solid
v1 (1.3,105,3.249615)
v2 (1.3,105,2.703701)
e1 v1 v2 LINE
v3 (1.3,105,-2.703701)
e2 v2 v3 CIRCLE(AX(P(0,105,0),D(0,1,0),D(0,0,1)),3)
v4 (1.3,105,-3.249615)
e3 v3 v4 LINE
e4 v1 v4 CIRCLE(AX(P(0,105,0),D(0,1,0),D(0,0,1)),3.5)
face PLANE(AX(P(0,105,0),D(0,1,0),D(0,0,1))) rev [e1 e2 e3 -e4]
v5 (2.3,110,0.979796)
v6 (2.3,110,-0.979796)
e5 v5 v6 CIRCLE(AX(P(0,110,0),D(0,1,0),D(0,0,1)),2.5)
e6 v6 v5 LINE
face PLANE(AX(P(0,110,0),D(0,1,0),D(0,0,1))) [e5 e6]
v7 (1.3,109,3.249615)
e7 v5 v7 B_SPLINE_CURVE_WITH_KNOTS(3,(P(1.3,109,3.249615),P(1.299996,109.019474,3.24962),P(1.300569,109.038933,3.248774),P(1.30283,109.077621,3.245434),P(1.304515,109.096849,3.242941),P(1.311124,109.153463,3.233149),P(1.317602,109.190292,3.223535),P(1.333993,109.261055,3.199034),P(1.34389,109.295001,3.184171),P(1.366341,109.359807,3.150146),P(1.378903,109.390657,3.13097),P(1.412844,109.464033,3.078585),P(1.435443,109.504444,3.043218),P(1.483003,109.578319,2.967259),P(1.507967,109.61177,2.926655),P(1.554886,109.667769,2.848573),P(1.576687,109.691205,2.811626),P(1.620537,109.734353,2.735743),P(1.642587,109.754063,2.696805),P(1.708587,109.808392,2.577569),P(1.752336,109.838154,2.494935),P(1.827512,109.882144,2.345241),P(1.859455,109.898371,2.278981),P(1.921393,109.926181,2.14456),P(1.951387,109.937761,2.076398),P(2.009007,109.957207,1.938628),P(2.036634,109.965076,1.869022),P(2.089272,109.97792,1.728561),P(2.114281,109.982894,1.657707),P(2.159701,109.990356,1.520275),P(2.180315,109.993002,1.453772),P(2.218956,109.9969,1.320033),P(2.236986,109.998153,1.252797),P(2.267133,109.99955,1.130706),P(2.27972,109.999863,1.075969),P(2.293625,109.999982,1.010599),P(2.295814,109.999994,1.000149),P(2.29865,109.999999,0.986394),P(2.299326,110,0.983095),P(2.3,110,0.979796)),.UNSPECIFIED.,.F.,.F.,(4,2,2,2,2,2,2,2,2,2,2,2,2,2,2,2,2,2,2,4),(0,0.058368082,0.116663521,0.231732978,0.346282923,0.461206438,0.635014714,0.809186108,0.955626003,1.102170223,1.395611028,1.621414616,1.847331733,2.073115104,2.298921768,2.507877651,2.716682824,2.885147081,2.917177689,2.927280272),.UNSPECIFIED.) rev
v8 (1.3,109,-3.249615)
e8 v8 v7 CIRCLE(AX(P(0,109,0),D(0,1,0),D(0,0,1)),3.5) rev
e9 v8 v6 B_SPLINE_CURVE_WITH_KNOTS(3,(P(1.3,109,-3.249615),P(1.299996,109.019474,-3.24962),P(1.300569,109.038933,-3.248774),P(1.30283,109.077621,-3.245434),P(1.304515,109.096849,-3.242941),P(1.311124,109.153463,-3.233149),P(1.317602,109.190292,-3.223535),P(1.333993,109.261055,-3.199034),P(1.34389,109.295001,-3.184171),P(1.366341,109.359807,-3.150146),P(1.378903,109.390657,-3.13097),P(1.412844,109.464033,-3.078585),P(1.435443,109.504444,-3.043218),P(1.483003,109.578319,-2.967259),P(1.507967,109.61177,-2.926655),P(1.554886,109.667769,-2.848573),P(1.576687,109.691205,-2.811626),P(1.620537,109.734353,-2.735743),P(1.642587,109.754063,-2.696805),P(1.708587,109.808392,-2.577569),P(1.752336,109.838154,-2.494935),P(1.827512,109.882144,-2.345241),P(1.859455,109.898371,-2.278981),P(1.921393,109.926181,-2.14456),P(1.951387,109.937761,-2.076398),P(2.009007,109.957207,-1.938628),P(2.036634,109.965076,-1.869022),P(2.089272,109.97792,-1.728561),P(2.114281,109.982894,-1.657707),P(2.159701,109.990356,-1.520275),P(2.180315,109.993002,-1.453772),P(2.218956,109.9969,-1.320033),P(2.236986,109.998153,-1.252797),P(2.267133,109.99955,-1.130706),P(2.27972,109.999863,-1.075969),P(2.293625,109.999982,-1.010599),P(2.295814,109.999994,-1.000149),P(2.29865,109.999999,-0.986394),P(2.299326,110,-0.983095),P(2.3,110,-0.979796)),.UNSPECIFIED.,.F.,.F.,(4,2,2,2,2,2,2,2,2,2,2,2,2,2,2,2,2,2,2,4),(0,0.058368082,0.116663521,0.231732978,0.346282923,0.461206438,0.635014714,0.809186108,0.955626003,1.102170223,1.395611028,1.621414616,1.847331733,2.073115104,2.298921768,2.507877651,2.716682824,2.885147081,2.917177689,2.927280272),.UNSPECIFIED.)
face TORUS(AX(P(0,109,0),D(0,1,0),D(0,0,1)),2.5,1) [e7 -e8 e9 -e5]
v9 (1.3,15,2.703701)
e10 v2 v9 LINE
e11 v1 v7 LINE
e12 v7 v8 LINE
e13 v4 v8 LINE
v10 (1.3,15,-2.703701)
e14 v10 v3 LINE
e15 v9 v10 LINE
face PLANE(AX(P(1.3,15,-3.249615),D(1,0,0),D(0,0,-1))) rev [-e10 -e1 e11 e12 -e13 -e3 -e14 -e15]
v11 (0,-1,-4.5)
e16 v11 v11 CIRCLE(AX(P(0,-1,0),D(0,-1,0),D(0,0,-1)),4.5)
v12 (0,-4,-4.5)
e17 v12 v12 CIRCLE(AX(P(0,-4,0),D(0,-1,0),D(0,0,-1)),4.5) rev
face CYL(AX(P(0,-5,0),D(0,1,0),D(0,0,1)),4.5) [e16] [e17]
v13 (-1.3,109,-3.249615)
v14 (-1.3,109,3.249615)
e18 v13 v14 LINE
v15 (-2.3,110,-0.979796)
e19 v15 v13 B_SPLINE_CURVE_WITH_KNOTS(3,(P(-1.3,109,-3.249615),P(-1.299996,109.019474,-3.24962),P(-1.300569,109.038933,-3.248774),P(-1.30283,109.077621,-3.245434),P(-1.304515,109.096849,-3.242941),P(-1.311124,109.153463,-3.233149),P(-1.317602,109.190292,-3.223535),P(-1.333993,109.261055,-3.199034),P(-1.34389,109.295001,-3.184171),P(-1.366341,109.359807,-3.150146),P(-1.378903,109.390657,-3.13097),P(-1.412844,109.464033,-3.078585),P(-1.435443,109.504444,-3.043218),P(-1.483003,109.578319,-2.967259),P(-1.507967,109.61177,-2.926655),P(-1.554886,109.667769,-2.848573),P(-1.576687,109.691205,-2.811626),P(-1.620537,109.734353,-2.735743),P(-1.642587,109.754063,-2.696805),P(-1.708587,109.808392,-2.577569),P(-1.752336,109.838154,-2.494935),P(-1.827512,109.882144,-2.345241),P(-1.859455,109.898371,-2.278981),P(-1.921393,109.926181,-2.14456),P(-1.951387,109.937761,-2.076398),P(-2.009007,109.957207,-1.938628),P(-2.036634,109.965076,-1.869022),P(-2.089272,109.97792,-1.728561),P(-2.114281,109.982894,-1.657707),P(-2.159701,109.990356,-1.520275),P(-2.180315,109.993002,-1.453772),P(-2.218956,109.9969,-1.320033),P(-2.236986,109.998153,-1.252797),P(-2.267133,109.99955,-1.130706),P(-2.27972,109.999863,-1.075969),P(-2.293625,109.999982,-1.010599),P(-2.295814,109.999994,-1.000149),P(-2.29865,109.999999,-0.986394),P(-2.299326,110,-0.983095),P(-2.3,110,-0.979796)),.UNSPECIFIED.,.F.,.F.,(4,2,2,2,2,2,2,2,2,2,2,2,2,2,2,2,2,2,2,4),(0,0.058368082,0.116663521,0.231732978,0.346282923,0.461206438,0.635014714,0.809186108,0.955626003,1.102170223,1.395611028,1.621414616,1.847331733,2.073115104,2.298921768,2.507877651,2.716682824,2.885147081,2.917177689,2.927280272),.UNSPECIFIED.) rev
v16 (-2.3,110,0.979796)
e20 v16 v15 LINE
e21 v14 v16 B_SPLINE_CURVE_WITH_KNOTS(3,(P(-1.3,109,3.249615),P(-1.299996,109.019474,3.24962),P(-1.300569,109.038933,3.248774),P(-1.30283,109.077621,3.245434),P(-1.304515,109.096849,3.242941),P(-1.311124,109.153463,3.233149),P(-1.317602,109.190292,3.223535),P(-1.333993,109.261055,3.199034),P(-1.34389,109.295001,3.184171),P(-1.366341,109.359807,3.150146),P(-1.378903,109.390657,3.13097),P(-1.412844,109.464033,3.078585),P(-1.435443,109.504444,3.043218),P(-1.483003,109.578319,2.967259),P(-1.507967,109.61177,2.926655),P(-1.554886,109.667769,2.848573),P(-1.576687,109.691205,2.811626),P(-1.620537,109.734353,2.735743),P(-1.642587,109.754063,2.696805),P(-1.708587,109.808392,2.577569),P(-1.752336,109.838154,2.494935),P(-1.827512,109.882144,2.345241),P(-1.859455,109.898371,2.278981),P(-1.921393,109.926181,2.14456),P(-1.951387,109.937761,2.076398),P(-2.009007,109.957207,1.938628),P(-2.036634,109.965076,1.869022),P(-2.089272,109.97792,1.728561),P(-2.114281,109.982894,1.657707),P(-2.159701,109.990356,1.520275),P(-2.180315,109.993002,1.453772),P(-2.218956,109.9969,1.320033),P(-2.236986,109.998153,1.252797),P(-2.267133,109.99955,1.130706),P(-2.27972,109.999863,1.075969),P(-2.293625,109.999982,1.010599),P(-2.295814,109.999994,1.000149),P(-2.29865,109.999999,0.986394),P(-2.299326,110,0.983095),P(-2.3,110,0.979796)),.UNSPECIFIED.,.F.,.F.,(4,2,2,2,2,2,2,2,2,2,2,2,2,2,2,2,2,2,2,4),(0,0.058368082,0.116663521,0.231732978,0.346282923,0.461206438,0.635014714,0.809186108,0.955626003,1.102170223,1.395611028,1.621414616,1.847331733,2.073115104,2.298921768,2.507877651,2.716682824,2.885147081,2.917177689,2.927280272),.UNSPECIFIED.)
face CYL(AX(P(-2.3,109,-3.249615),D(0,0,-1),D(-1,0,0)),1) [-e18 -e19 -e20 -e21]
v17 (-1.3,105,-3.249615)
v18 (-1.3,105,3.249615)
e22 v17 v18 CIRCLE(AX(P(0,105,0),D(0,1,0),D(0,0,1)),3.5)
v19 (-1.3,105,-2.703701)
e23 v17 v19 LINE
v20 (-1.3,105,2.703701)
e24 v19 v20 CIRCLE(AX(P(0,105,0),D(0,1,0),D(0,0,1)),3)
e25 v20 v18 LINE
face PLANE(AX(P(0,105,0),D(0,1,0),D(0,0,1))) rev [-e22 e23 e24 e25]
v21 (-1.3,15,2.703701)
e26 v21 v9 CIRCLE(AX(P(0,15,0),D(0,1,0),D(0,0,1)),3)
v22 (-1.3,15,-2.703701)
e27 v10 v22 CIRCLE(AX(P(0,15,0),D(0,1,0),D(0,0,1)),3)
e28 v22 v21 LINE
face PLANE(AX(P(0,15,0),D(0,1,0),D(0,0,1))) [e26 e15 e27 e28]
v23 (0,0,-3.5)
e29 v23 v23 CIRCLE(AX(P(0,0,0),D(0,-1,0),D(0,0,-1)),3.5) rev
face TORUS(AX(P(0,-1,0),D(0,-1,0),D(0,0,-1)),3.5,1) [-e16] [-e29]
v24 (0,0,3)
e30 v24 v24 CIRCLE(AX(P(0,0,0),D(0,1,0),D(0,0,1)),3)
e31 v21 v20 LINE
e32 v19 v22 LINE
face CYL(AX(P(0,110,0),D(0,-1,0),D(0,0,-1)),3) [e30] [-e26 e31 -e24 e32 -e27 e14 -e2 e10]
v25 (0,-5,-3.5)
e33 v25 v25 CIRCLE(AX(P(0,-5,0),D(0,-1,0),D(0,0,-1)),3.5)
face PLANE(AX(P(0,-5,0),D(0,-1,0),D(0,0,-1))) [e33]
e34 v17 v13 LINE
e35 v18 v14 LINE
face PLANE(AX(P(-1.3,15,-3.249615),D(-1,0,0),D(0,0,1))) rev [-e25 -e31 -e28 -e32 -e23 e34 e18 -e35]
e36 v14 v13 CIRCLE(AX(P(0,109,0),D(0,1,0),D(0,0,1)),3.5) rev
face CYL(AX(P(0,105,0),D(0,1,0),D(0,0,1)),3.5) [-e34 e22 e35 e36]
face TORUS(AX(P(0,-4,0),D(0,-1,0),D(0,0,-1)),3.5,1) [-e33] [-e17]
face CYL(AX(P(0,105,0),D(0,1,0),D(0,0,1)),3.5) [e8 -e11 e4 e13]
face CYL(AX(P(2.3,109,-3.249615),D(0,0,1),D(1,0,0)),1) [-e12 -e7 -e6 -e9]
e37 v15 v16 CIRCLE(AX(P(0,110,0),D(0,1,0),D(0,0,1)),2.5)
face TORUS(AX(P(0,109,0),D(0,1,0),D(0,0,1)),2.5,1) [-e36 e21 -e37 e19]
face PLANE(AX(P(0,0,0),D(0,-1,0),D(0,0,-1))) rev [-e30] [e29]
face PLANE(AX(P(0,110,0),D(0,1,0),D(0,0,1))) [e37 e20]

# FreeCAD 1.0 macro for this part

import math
import FreeCAD as App
import Part
import Sketcher
from FreeCAD import Vector
Q = App.Units.Quantity


def edges_at(feature, points):
    """Names of the edges that pass closest to the given points."""
    edges = feature.Shape.Edges
    near = lambda p: min(range(len(edges)), key=lambda i: edges[i].distToShape(Part.Vertex(*p))[0])
    return sorted({f"Edge{near(p) + 1}" for p in points})

doc = App.newDocument("Part")
params = doc.addObject("Spreadsheet::Sheet", "Params")
for row, (alias, value) in enumerate([
    ("sketch1_diameter", "6 mm"),
    ("pad1_length", "110 mm"),
    ("sketch2_diameter", "9 mm"),
    ("pad2_length", "5 mm"),
    ("fillet_radius", "1 mm"),
    ("sketch3_diameter", "7 mm"),
    ("sketch3_diameter2", "6 mm"),
    ("pad3_length", "5 mm"),
    ("sketch4_radius", "3.5 mm"),
    ("pocket1_length", "95 mm"),
    ("fillet2_radius", "1 mm"),
], start=1):
    params.set(f"A{row}", alias)
    params.set(f"B{row}", "=" + value)
    params.setAlias(f"B{row}", alias)

body = doc.addObject("PartDesign::Body", "Body")

sketch1 = body.newObject("Sketcher::SketchObject", "Sketch")
sketch1.AttachmentSupport = (doc.getObject("XZ_Plane"), [""])
sketch1.MapMode = "FlatFace"
sketch1.addGeometry(Part.Circle(Vector(0, 0, 0), Vector(0, 0, 1), 3), False)
sketch1.addConstraint(Sketcher.Constraint("Coincident", 0, 3, -1, 1))
sketch1.addConstraint(Sketcher.Constraint("Diameter", 0, Q("6 mm")))
sketch1.setExpression("Constraints[1]", "Params.sketch1_diameter")
pad1 = body.newObject("PartDesign::Pad", "Pad")
pad1.Profile = sketch1
pad1.setExpression("Length", "Params.pad1_length")
pad1.Reversed = True

sketch2 = body.newObject("Sketcher::SketchObject", "Sketch001")
sketch2.AttachmentSupport = (doc.getObject("XZ_Plane"), [""])
sketch2.MapMode = "FlatFace"
sketch2.AttachmentOffset = App.Placement(Vector(0, 0, 5), App.Rotation())
sketch2.addGeometry(Part.Circle(Vector(0, 0, 0), Vector(0, 0, 1), 4.5), False)
sketch2.addConstraint(Sketcher.Constraint("Coincident", 0, 3, -1, 1))
sketch2.addConstraint(Sketcher.Constraint("Diameter", 0, Q("9 mm")))
sketch2.setExpression("Constraints[1]", "Params.sketch2_diameter")
pad2 = body.newObject("PartDesign::Pad", "Pad001")
pad2.Profile = sketch2
pad2.setExpression("Length", "Params.pad2_length")
pad2.Reversed = True
doc.recompute()

fillet = body.newObject("PartDesign::Fillet", "Fillet")
fillet.Base = (pad2, edges_at(pad2, [(0, 0, 4.5), (0, -5, 4.5)]))
fillet.setExpression("Radius", "Params.fillet_radius")

sketch3 = body.newObject("Sketcher::SketchObject", "Sketch002")
sketch3.AttachmentSupport = (doc.getObject("XZ_Plane"), [""])
sketch3.MapMode = "FlatFace"
sketch3.AttachmentOffset = App.Placement(Vector(0, 0, -105), App.Rotation())
sketch3.addGeometry(Part.Circle(Vector(0, 0, 0), Vector(0, 0, 1), 3.5), False)
sketch3.addGeometry(Part.Circle(Vector(0, 0, 0), Vector(0, 0, 1), 3), False)
sketch3.addConstraint(Sketcher.Constraint("Coincident", 0, 3, -1, 1))
sketch3.addConstraint(Sketcher.Constraint("Coincident", 1, 3, -1, 1))
sketch3.addConstraint(Sketcher.Constraint("Diameter", 0, Q("7 mm")))
sketch3.addConstraint(Sketcher.Constraint("Diameter", 1, Q("6 mm")))
sketch3.setExpression("Constraints[2]", "Params.sketch3_diameter")
sketch3.setExpression("Constraints[3]", "Params.sketch3_diameter2")
pad3 = body.newObject("PartDesign::Pad", "Pad002")
pad3.Profile = sketch3
pad3.setExpression("Length", "Params.pad3_length")
pad3.Reversed = True

sketch4 = body.newObject("Sketcher::SketchObject", "Sketch003")
sketch4.AttachmentSupport = (doc.getObject("XZ_Plane"), [""])
sketch4.MapMode = "FlatFace"
sketch4.AttachmentOffset = App.Placement(Vector(0, 0, -15), App.Rotation())
sketch4.addGeometry(Part.LineSegment(Vector(-1.3, -3.2, 0), Vector(-1.3, 3.2, 0)), False)
sketch4.addGeometry(Part.ArcOfCircle(Part.Circle(Vector(0, 0, 0), Vector(0, 0, 1), 3.5), math.radians(68), math.radians(112)), False)
sketch4.addGeometry(Part.LineSegment(Vector(1.3, 3.2, 0), Vector(1.3, -3.2, 0)), False)
sketch4.addGeometry(Part.ArcOfCircle(Part.Circle(Vector(0, 0, 0), Vector(0, 0, 1), 3.5), math.radians(-112), math.radians(-68)), False)
sketch4.addConstraint(Sketcher.Constraint("Coincident", 0, 2, 1, 2))
sketch4.addConstraint(Sketcher.Constraint("Coincident", 1, 1, 2, 1))
sketch4.addConstraint(Sketcher.Constraint("Coincident", 2, 2, 3, 2))
sketch4.addConstraint(Sketcher.Constraint("Coincident", 3, 1, 0, 1))
sketch4.addConstraint(Sketcher.Constraint("Vertical", 0))
sketch4.addConstraint(Sketcher.Constraint("Vertical", 2))
sketch4.addConstraint(Sketcher.Constraint("Coincident", 1, 3, -1, 1))
sketch4.addConstraint(Sketcher.Constraint("Coincident", 3, 3, -1, 1))
sketch4.addConstraint(Sketcher.Constraint("Equal", 1, 3))
sketch4.addConstraint(Sketcher.Constraint("Horizontal", 0, 2, 1, 1))
sketch4.addConstraint(Sketcher.Constraint("Radius", 1, Q("3.5 mm")))
sketch4.addConstraint(Sketcher.Constraint("DistanceX", 0, 2, -1, 1, Q("1.3 mm")))
sketch4.setExpression("Constraints[10]", "Params.sketch4_radius")
pocket1 = body.newObject("PartDesign::Pocket", "Pocket")
pocket1.Profile = sketch4
pocket1.setExpression("Length", "Params.pocket1_length")
doc.recompute()

fillet2 = body.newObject("PartDesign::Fillet", "Fillet001")
fillet2.Base = (pocket1, edges_at(pocket1, [
    (3.5, 110, 0),
    (-3.5, 110, 0),
    (-1.3, 110, 0),
    (1.3, 110, 0),
]))
fillet2.setExpression("Radius", "Params.fillet2_radius")

doc.recompute()
